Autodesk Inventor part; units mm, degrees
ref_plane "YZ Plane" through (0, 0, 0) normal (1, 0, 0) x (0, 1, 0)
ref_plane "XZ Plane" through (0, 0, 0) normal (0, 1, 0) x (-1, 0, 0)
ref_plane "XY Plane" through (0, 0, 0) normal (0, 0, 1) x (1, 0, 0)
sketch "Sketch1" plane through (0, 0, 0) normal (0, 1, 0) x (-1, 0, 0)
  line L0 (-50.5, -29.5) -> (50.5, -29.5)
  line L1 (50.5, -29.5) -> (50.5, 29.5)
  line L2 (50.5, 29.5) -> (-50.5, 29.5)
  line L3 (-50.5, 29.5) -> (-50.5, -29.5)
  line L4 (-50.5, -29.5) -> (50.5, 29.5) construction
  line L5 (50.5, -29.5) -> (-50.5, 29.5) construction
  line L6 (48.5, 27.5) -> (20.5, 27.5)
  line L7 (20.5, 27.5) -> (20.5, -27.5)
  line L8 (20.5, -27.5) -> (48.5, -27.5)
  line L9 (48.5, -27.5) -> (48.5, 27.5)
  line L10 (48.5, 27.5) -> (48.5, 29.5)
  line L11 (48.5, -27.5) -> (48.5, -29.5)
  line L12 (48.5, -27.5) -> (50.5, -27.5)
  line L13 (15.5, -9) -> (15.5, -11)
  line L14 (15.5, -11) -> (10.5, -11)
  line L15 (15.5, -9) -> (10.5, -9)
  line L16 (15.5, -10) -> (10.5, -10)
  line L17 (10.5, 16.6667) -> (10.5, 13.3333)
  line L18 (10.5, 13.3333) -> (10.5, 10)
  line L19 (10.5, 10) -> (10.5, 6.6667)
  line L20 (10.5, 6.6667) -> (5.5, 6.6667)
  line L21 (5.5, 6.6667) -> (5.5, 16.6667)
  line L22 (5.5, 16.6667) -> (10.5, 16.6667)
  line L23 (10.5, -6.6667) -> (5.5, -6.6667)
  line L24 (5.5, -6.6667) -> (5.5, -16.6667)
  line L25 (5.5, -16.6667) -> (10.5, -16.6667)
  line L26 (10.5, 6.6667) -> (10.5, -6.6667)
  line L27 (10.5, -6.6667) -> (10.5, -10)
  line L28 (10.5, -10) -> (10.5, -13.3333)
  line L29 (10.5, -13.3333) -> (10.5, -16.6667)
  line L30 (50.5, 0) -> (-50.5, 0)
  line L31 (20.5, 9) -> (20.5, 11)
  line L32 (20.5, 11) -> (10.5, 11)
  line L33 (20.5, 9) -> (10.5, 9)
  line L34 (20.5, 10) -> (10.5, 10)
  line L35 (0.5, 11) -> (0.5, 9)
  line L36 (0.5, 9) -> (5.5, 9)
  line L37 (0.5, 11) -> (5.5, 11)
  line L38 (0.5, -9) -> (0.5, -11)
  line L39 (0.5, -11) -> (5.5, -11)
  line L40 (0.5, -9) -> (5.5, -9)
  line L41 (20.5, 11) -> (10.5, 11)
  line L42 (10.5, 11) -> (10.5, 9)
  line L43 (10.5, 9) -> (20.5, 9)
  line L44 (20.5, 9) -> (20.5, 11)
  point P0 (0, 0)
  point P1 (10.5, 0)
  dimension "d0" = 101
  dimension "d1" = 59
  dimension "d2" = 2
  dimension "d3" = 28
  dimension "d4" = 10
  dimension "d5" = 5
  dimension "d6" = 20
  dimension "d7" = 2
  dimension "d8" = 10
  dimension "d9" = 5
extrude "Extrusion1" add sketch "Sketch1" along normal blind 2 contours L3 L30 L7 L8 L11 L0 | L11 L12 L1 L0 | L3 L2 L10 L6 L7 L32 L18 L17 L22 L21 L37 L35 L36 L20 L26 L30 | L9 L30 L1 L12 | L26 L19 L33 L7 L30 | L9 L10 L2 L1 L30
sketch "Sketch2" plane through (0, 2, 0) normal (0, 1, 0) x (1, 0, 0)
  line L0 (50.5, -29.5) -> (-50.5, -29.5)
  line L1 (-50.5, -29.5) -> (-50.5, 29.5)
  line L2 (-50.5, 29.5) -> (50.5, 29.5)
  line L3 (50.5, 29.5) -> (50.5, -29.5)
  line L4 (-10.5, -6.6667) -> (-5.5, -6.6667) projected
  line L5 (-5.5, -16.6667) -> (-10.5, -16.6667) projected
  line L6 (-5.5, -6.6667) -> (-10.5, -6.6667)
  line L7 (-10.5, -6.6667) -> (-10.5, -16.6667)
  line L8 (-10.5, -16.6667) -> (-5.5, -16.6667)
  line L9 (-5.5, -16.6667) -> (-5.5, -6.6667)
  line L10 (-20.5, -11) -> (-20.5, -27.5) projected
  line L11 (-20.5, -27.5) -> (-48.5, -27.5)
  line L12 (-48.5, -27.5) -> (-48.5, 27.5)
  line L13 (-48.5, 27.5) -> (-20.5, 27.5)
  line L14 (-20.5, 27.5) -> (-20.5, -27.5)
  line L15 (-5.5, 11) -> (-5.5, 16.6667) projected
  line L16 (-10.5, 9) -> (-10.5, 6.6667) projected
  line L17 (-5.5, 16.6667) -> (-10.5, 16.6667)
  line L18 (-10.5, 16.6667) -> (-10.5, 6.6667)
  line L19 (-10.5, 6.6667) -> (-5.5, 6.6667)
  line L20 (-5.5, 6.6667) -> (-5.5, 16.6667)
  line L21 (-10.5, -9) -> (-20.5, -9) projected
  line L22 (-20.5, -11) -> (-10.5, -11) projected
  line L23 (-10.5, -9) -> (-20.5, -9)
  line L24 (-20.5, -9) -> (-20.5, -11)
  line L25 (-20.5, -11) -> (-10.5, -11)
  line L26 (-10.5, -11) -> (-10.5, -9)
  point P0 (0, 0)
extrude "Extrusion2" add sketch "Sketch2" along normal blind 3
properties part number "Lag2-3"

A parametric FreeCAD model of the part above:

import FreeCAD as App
import Part
import Sketcher

doc = App.newDocument("Part")
params = doc.addObject("Spreadsheet::Sheet", "Params")
for row, (alias, value) in enumerate([
    ("sketch1_width", "101 mm"),
    ("sketch1_width2", "10 mm"),
    ("sketch1_width3", "5 mm"),
    ("sketch1_width4", "28 mm"),
    ("sketch1_height", "59 mm"),
    ("pad1_length", "2 mm"),
    ("sketch2_width", "101 mm"),
    ("sketch2_width2", "5 mm"),
    ("sketch2_width3", "10 mm"),
    ("sketch2_width4", "28 mm"),
    ("sketch2_height", "59 mm"),
    ("pad2_length", "3 mm"),
], start=1):
    params.set(f"A{row}", alias)
    params.set(f"B{row}", "=" + value)
    params.setAlias(f"B{row}", alias)

body = doc.addObject("PartDesign::Body", "Body")

sketch1 = body.newObject("Sketcher::SketchObject", "Sketch")
sketch1.AttachmentSupport = (doc.getObject("XZ_Plane"), [""])
sketch1.MapMode = "FlatFace"
sketch1.addGeometry([
    Part.LineSegment(App.Vector(50.5, -29.5, 0), App.Vector(-50.5, -29.5, 0)),
    Part.LineSegment(App.Vector(-50.5, -29.5, 0), App.Vector(-50.5, 29.5, 0)),
    Part.LineSegment(App.Vector(-50.5, 29.5, 0), App.Vector(50.5, 29.5, 0)),
    Part.LineSegment(App.Vector(50.5, 29.5, 0), App.Vector(50.5, -29.5, 0)),
    Part.LineSegment(App.Vector(-20.5, -27.5, 0), App.Vector(-20.5, 9, 0)),
    Part.LineSegment(App.Vector(-20.5, 9, 0), App.Vector(-10.5, 9, 0)),
    Part.LineSegment(App.Vector(-10.5, 9, 0), App.Vector(-10.5, 6.7, 0)),
    Part.LineSegment(App.Vector(-10.5, 6.7, 0), App.Vector(-5.5, 6.7, 0)),
    Part.LineSegment(App.Vector(-5.5, 6.7, 0), App.Vector(-5.5, 9, 0)),
    Part.LineSegment(App.Vector(-5.5, 9, 0), App.Vector(-0.5, 9, 0)),
    Part.LineSegment(App.Vector(-0.5, 9, 0), App.Vector(-0.5, 11, 0)),
    Part.LineSegment(App.Vector(-0.5, 11, 0), App.Vector(-5.5, 11, 0)),
    Part.LineSegment(App.Vector(-5.5, 11, 0), App.Vector(-5.5, 16.7, 0)),
    Part.LineSegment(App.Vector(-5.5, 16.7, 0), App.Vector(-10.5, 16.7, 0)),
    Part.LineSegment(App.Vector(-10.5, 16.7, 0), App.Vector(-10.5, 11, 0)),
    Part.LineSegment(App.Vector(-10.5, 11, 0), App.Vector(-20.5, 11, 0)),
    Part.LineSegment(App.Vector(-20.5, 11, 0), App.Vector(-20.5, 27.5, 0)),
    Part.LineSegment(App.Vector(-20.5, 27.5, 0), App.Vector(-48.5, 27.5, 0)),
    Part.LineSegment(App.Vector(-48.5, 27.5, 0), App.Vector(-48.5, -27.5, 0)),
    Part.LineSegment(App.Vector(-48.5, -27.5, 0), App.Vector(-20.5, -27.5, 0)),
    Part.LineSegment(App.Vector(-5.5, -6.7, 0), App.Vector(-10.5, -6.7, 0)),
    Part.LineSegment(App.Vector(-10.5, -6.7, 0), App.Vector(-10.5, -9, 0)),
    Part.LineSegment(App.Vector(-10.5, -9, 0), App.Vector(-15.5, -9, 0)),
    Part.LineSegment(App.Vector(-15.5, -9, 0), App.Vector(-15.5, -11, 0)),
    Part.LineSegment(App.Vector(-15.5, -11, 0), App.Vector(-10.5, -11, 0)),
    Part.LineSegment(App.Vector(-10.5, -11, 0), App.Vector(-10.5, -16.7, 0)),
    Part.LineSegment(App.Vector(-10.5, -16.7, 0), App.Vector(-5.5, -16.7, 0)),
    Part.LineSegment(App.Vector(-5.5, -16.7, 0), App.Vector(-5.5, -11, 0)),
    Part.LineSegment(App.Vector(-5.5, -11, 0), App.Vector(-0.5, -11, 0)),
    Part.LineSegment(App.Vector(-0.5, -11, 0), App.Vector(-0.5, -9, 0)),
    Part.LineSegment(App.Vector(-0.5, -9, 0), App.Vector(-5.5, -9, 0)),
    Part.LineSegment(App.Vector(-5.5, -9, 0), App.Vector(-5.5, -6.7, 0)),
], False)
sketch1.addConstraint([
    Sketcher.Constraint("Coincident", 0, 2, 1, 1),
    Sketcher.Constraint("Coincident", 1, 2, 2, 1),
    Sketcher.Constraint("Coincident", 2, 2, 3, 1),
    Sketcher.Constraint("Coincident", 3, 2, 0, 1),
    Sketcher.Constraint("Coincident", 4, 2, 5, 1),
    Sketcher.Constraint("Coincident", 5, 2, 6, 1),
    Sketcher.Constraint("Coincident", 6, 2, 7, 1),
    Sketcher.Constraint("Coincident", 7, 2, 8, 1),
    Sketcher.Constraint("Coincident", 8, 2, 9, 1),
    Sketcher.Constraint("Coincident", 9, 2, 10, 1),
    Sketcher.Constraint("Coincident", 10, 2, 11, 1),
    Sketcher.Constraint("Coincident", 11, 2, 12, 1),
    Sketcher.Constraint("Coincident", 12, 2, 13, 1),
    Sketcher.Constraint("Coincident", 13, 2, 14, 1),
    Sketcher.Constraint("Coincident", 14, 2, 15, 1),
    Sketcher.Constraint("Coincident", 15, 2, 16, 1),
    Sketcher.Constraint("Coincident", 16, 2, 17, 1),
    Sketcher.Constraint("Coincident", 17, 2, 18, 1),
    Sketcher.Constraint("Coincident", 18, 2, 19, 1),
    Sketcher.Constraint("Coincident", 19, 2, 4, 1),
    Sketcher.Constraint("Coincident", 20, 2, 21, 1),
    Sketcher.Constraint("Coincident", 21, 2, 22, 1),
    Sketcher.Constraint("Coincident", 22, 2, 23, 1),
    Sketcher.Constraint("Coincident", 23, 2, 24, 1),
    Sketcher.Constraint("Coincident", 24, 2, 25, 1),
    Sketcher.Constraint("Coincident", 25, 2, 26, 1),
    Sketcher.Constraint("Coincident", 26, 2, 27, 1),
    Sketcher.Constraint("Coincident", 27, 2, 28, 1),
    Sketcher.Constraint("Coincident", 28, 2, 29, 1),
    Sketcher.Constraint("Coincident", 29, 2, 30, 1),
    Sketcher.Constraint("Coincident", 30, 2, 31, 1),
    Sketcher.Constraint("Coincident", 31, 2, 20, 1),
    Sketcher.Constraint("Horizontal", 0),
    Sketcher.Constraint("Vertical", 1),
    Sketcher.Constraint("Horizontal", 2),
    Sketcher.Constraint("Vertical", 3),
    Sketcher.Constraint("Vertical", 4),
    Sketcher.Constraint("Horizontal", 5),
    Sketcher.Constraint("Vertical", 6),
    Sketcher.Constraint("Horizontal", 7),
    Sketcher.Constraint("Vertical", 8),
    Sketcher.Constraint("Horizontal", 9),
    Sketcher.Constraint("Vertical", 10),
    Sketcher.Constraint("Horizontal", 11),
    Sketcher.Constraint("Vertical", 12),
    Sketcher.Constraint("Horizontal", 13),
    Sketcher.Constraint("Vertical", 14),
    Sketcher.Constraint("Horizontal", 15),
    Sketcher.Constraint("Vertical", 16),
    Sketcher.Constraint("Horizontal", 17),
    Sketcher.Constraint("Vertical", 18),
    Sketcher.Constraint("Horizontal", 19),
    Sketcher.Constraint("Horizontal", 20),
    Sketcher.Constraint("Vertical", 21),
    Sketcher.Constraint("Horizontal", 22),
    Sketcher.Constraint("Vertical", 23),
    Sketcher.Constraint("Horizontal", 24),
    Sketcher.Constraint("Vertical", 25),
    Sketcher.Constraint("Horizontal", 26),
    Sketcher.Constraint("Vertical", 27),
    Sketcher.Constraint("Horizontal", 28),
    Sketcher.Constraint("Vertical", 29),
    Sketcher.Constraint("Horizontal", 30),
    Sketcher.Constraint("Vertical", 31),
    Sketcher.Constraint("Symmetric", 0, 2, 2, 2, -1, 1),
    Sketcher.Constraint("Symmetric", 16, 2, 19, 2, -1),
    Sketcher.Constraint("Symmetric", 6, 2, 20, 2, -1),
    Sketcher.Constraint("Symmetric", 14, 2, 24, 2, -1),
    Sketcher.Constraint("Symmetric", 12, 2, 26, 2, -1),
    Sketcher.Constraint("Symmetric", 10, 2, 28, 2, -1),
    Sketcher.Constraint("Symmetric", 8, 2, 30, 2, -1),
    Sketcher.Constraint("Horizontal", 5, 2, 8, 2),
    Sketcher.Constraint("Horizontal", 11, 2, 14, 2),
    Sketcher.Constraint("Horizontal", 22, 2, 29, 2),
    Sketcher.Constraint("Vertical", 8, 2, 11, 2),
    Sketcher.Constraint("Vertical", 6, 2, 13, 2),
    Sketcher.Constraint("Equal", 7, 9),
    Sketcher.Constraint("Equal", 20, 22),
    Sketcher.Constraint("DistanceX", 0, 2, 0, 1, 101.0),
    Sketcher.Constraint("DistanceX", 5, 1, 5, 2, 10.0),
    Sketcher.Constraint("DistanceX", 7, 1, 7, 2, 5.0),
    Sketcher.Constraint("DistanceX", 17, 2, 17, 1, 28.0),
    Sketcher.Constraint("DistanceY", 1, 1, 1, 2, 59.0),
    Sketcher.Constraint("DistanceY", 10, 1, 10, 2, 2.0),
    Sketcher.Constraint("DistanceY", 6, 2, 13, 2, 10.0),
    Sketcher.Constraint("DistanceX", 1, 2, 17, 2, 2.0),
    Sketcher.Constraint("DistanceY", 17, 2, 1, 2, 2.0),
    Sketcher.Constraint("DistanceY", 4, 1, 4, 2, 36.5),
    Sketcher.Constraint("DistanceY", 6, 2, 6, 1, 2.3333),
])
sketch1.setExpression("Constraints[78]", "Params.sketch1_width")
sketch1.setExpression("Constraints[79]", "Params.sketch1_width2")
sketch1.setExpression("Constraints[80]", "Params.sketch1_width3")
sketch1.setExpression("Constraints[81]", "Params.sketch1_width4")
sketch1.setExpression("Constraints[82]", "Params.sketch1_height")
pad1 = body.newObject("PartDesign::Pad", "Pad")
pad1.Profile = sketch1
pad1.setExpression("Length", "Params.pad1_length")
pad1.Reversed = True

sketch2 = body.newObject("Sketcher::SketchObject", "Sketch001")
sketch2.AttachmentSupport = (doc.getObject("XZ_Plane"), [""])
sketch2.MapMode = "FlatFace"
sketch2.AttachmentOffset = App.Placement(App.Vector(0, 0, -2), App.Rotation())
sketch2.addGeometry([
    Part.LineSegment(App.Vector(-50.5, 29.5, 0), App.Vector(50.5, 29.5, 0)),
    Part.LineSegment(App.Vector(50.5, 29.5, 0), App.Vector(50.5, -29.5, 0)),
    Part.LineSegment(App.Vector(50.5, -29.5, 0), App.Vector(-50.5, -29.5, 0)),
    Part.LineSegment(App.Vector(-50.5, -29.5, 0), App.Vector(-50.5, 29.5, 0)),
    Part.LineSegment(App.Vector(-10.5, 9, 0), App.Vector(-10.5, 6.7, 0)),
    Part.LineSegment(App.Vector(-10.5, 6.7, 0), App.Vector(-5.5, 6.7, 0)),
    Part.LineSegment(App.Vector(-5.5, 6.7, 0), App.Vector(-5.5, 16.7, 0)),
    Part.LineSegment(App.Vector(-5.5, 16.7, 0), App.Vector(-10.5, 16.7, 0)),
    Part.LineSegment(App.Vector(-10.5, 16.7, 0), App.Vector(-10.5, 11, 0)),
    Part.LineSegment(App.Vector(-10.5, 11, 0), App.Vector(-20.5, 11, 0)),
    Part.LineSegment(App.Vector(-20.5, 11, 0), App.Vector(-20.5, 27.5, 0)),
    Part.LineSegment(App.Vector(-20.5, 27.5, 0), App.Vector(-48.5, 27.5, 0)),
    Part.LineSegment(App.Vector(-48.5, 27.5, 0), App.Vector(-48.5, -27.5, 0)),
    Part.LineSegment(App.Vector(-48.5, -27.5, 0), App.Vector(-20.5, -27.5, 0)),
    Part.LineSegment(App.Vector(-20.5, -27.5, 0), App.Vector(-20.5, 9, 0)),
    Part.LineSegment(App.Vector(-20.5, 9, 0), App.Vector(-10.5, 9, 0)),
    Part.LineSegment(App.Vector(-5.5, -16.7, 0), App.Vector(-5.5, -6.7, 0)),
    Part.LineSegment(App.Vector(-5.5, -6.7, 0), App.Vector(-10.5, -6.7, 0)),
    Part.LineSegment(App.Vector(-10.5, -6.7, 0), App.Vector(-10.5, -16.7, 0)),
    Part.LineSegment(App.Vector(-10.5, -16.7, 0), App.Vector(-5.5, -16.7, 0)),
], False)
sketch2.addConstraint([
    Sketcher.Constraint("Coincident", 0, 2, 1, 1),
    Sketcher.Constraint("Coincident", 1, 2, 2, 1),
    Sketcher.Constraint("Coincident", 2, 2, 3, 1),
    Sketcher.Constraint("Coincident", 3, 2, 0, 1),
    Sketcher.Constraint("Coincident", 4, 2, 5, 1),
    Sketcher.Constraint("Coincident", 5, 2, 6, 1),
    Sketcher.Constraint("Coincident", 6, 2, 7, 1),
    Sketcher.Constraint("Coincident", 7, 2, 8, 1),
    Sketcher.Constraint("Coincident", 8, 2, 9, 1),
    Sketcher.Constraint("Coincident", 9, 2, 10, 1),
    Sketcher.Constraint("Coincident", 10, 2, 11, 1),
    Sketcher.Constraint("Coincident", 11, 2, 12, 1),
    Sketcher.Constraint("Coincident", 12, 2, 13, 1),
    Sketcher.Constraint("Coincident", 13, 2, 14, 1),
    Sketcher.Constraint("Coincident", 14, 2, 15, 1),
    Sketcher.Constraint("Coincident", 15, 2, 4, 1),
    Sketcher.Constraint("Coincident", 16, 2, 17, 1),
    Sketcher.Constraint("Coincident", 17, 2, 18, 1),
    Sketcher.Constraint("Coincident", 18, 2, 19, 1),
    Sketcher.Constraint("Coincident", 19, 2, 16, 1),
    Sketcher.Constraint("Horizontal", 0),
    Sketcher.Constraint("Vertical", 1),
    Sketcher.Constraint("Horizontal", 2),
    Sketcher.Constraint("Vertical", 3),
    Sketcher.Constraint("Vertical", 4),
    Sketcher.Constraint("Horizontal", 5),
    Sketcher.Constraint("Vertical", 6),
    Sketcher.Constraint("Horizontal", 7),
    Sketcher.Constraint("Vertical", 8),
    Sketcher.Constraint("Horizontal", 9),
    Sketcher.Constraint("Vertical", 10),
    Sketcher.Constraint("Horizontal", 11),
    Sketcher.Constraint("Vertical", 12),
    Sketcher.Constraint("Horizontal", 13),
    Sketcher.Constraint("Vertical", 14),
    Sketcher.Constraint("Horizontal", 15),
    Sketcher.Constraint("Vertical", 16),
    Sketcher.Constraint("Horizontal", 17),
    Sketcher.Constraint("Vertical", 18),
    Sketcher.Constraint("Horizontal", 19),
    Sketcher.Constraint("Symmetric", 0, 2, 2, 2, -1, 1),
    Sketcher.Constraint("Symmetric", 10, 2, 13, 2, -1),
    Sketcher.Constraint("Symmetric", 5, 2, 16, 2, -1),
    Sketcher.Constraint("Symmetric", 7, 2, 18, 2, -1),
    Sketcher.Constraint("Vertical", 4, 2, 7, 2),
    Sketcher.Constraint("Equal", 15, 6),
    Sketcher.Constraint("DistanceX", 0, 1, 0, 2, 101.0),
    Sketcher.Constraint("DistanceX", 5, 1, 5, 2, 5.0),
    Sketcher.Constraint("DistanceX", 9, 2, 9, 1, 10.0),
    Sketcher.Constraint("DistanceX", 11, 2, 11, 1, 28.0),
    Sketcher.Constraint("DistanceY", 1, 2, 1, 1, 59.0),
    Sketcher.Constraint("DistanceY", 12, 2, 12, 1, 55.0),
    Sketcher.Constraint("DistanceY", 10, 1, 10, 2, 16.5),
    Sketcher.Constraint("DistanceY", 14, 1, 14, 2, 36.5),
    Sketcher.Constraint("DistanceX", 3, 2, 4, 2, 40.0),
    Sketcher.Constraint("DistanceY", 4, 2, 4, 1, 2.3333),
])
sketch2.setExpression("Constraints[46]", "Params.sketch2_width")
sketch2.setExpression("Constraints[47]", "Params.sketch2_width2")
sketch2.setExpression("Constraints[48]", "Params.sketch2_width3")
sketch2.setExpression("Constraints[49]", "Params.sketch2_width4")
sketch2.setExpression("Constraints[50]", "Params.sketch2_height")
pad2 = body.newObject("PartDesign::Pad", "Pad001")
pad2.Profile = sketch2
pad2.setExpression("Length", "Params.pad2_length")
pad2.Reversed = True

doc.recompute()
